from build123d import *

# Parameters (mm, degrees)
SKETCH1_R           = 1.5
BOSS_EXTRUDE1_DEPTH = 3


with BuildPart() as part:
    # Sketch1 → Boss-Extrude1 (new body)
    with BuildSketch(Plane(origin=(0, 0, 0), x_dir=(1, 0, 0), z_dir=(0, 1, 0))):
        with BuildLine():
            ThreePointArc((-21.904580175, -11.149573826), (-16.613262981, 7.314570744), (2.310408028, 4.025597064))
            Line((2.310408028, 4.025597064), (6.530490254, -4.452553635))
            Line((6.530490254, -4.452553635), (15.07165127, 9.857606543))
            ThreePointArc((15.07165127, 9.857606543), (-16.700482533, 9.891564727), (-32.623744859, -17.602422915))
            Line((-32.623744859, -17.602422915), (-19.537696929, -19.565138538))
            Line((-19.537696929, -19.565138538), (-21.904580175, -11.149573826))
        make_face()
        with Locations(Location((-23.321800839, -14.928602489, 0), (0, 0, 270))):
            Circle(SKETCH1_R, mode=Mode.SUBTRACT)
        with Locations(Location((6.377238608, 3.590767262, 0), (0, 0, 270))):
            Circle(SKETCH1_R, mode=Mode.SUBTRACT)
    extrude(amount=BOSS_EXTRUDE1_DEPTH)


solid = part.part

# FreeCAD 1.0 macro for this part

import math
import FreeCAD as App
import Part
import Sketcher
from FreeCAD import Vector
Q = App.Units.Quantity

doc = App.newDocument("Part")
body = doc.addObject("PartDesign::Body", "Body")

sketch1 = body.newObject("Sketcher::SketchObject", "Sketch")
sketch1.AttachmentSupport = (doc.getObject("XZ_Plane"), [""])
sketch1.MapMode = "FlatFace"
sketch1.addGeometry([
    Part.ArcOfCircle(Part.Circle(Vector(-9, 4.9, 0), Vector(0, 0, 1), 14.4), math.radians(154), math.radians(322)),
    Part.LineSegment(Vector(2.3, -4, 0), Vector(6.5, 4.5, 0)),
    Part.LineSegment(Vector(6.5, 4.5, 0), Vector(15.1, -9.9, 0)),
    Part.ArcOfCircle(Part.Circle(Vector(-0.8, 17.6, 0), Vector(0, 0, 1), 31.8), math.radians(-180), math.radians(-60)),
    Part.LineSegment(Vector(-32.6, 17.6, 0), Vector(-19.5, 19.6, 0)),
    Part.LineSegment(Vector(-19.5, 19.6, 0), Vector(-21.9, 11.1, 0)),
    Part.Circle(Vector(-23.3, 14.9, 0), Vector(0, 0, 1), 1.5),
    Part.Circle(Vector(6.4, -3.6, 0), Vector(0, 0, 1), 1.5),
], False)
sketch1.addConstraint([
    Sketcher.Constraint("Coincident", 0, 2, 1, 1),
    Sketcher.Constraint("Coincident", 1, 2, 2, 1),
    Sketcher.Constraint("Coincident", 2, 2, 3, 2),
    Sketcher.Constraint("Coincident", 3, 1, 4, 1),
    Sketcher.Constraint("Coincident", 4, 2, 5, 1),
    Sketcher.Constraint("Coincident", 5, 2, 0, 1),
    Sketcher.Constraint("Equal", 6, 7),
    Sketcher.Constraint("Diameter", 6, Q("3 mm")),
    Sketcher.Constraint("Radius", 0, Q("14.370759 mm")),
    Sketcher.Constraint("Radius", 3, Q("31.779946 mm")),
    Sketcher.Constraint("DistanceX", 6, 3, -1, 1, Q("23.321801 mm")),
    Sketcher.Constraint("DistanceY", 0, 2, 6, 3, Q("18.9542 mm")),
    Sketcher.Constraint("Distance", 1, Q("9.470382 mm")),
    Sketcher.Constraint("Distance", 4, Q("13.232419 mm")),
    Sketcher.Constraint("DistanceY", -1, 1, 3, 3, Q("17.649889 mm")),
    Sketcher.Constraint("DistanceX", -1, 1, 7, 3, Q("6.377239 mm")),
    Sketcher.Constraint("DistanceX", -1, 1, 0, 2, Q("2.310408 mm")),
    Sketcher.Constraint("DistanceX", -1, 1, 1, 2, Q("6.53049 mm")),
    Sketcher.Constraint("DistanceX", -1, 1, 2, 2, Q("15.071651 mm")),
    Sketcher.Constraint("DistanceY", -1, 1, 4, 2, Q("19.565139 mm")),
    Sketcher.Constraint("DistanceX", 5, 2, -1, 1, Q("21.90458 mm")),
    Sketcher.Constraint("DistanceY", 0, 3, 3, 3, Q("12.787311 mm")),
    Sketcher.Constraint("DistanceY", 7, 3, 6, 3, Q("18.51937 mm")),
    Sketcher.Constraint("DistanceX", 3, 3, 0, 2, Q("3.154242 mm")),
    Sketcher.Constraint("DistanceY", 2, 2, 7, 3, Q("6.266839 mm")),
    Sketcher.Constraint("DistanceY", 6, 3, 3, 1, Q("2.67382 mm")),
])
pad1 = body.newObject("PartDesign::Pad", "Pad")
pad1.Profile = sketch1
pad1.Length = 3
pad1.Reversed = True

doc.recompute()
